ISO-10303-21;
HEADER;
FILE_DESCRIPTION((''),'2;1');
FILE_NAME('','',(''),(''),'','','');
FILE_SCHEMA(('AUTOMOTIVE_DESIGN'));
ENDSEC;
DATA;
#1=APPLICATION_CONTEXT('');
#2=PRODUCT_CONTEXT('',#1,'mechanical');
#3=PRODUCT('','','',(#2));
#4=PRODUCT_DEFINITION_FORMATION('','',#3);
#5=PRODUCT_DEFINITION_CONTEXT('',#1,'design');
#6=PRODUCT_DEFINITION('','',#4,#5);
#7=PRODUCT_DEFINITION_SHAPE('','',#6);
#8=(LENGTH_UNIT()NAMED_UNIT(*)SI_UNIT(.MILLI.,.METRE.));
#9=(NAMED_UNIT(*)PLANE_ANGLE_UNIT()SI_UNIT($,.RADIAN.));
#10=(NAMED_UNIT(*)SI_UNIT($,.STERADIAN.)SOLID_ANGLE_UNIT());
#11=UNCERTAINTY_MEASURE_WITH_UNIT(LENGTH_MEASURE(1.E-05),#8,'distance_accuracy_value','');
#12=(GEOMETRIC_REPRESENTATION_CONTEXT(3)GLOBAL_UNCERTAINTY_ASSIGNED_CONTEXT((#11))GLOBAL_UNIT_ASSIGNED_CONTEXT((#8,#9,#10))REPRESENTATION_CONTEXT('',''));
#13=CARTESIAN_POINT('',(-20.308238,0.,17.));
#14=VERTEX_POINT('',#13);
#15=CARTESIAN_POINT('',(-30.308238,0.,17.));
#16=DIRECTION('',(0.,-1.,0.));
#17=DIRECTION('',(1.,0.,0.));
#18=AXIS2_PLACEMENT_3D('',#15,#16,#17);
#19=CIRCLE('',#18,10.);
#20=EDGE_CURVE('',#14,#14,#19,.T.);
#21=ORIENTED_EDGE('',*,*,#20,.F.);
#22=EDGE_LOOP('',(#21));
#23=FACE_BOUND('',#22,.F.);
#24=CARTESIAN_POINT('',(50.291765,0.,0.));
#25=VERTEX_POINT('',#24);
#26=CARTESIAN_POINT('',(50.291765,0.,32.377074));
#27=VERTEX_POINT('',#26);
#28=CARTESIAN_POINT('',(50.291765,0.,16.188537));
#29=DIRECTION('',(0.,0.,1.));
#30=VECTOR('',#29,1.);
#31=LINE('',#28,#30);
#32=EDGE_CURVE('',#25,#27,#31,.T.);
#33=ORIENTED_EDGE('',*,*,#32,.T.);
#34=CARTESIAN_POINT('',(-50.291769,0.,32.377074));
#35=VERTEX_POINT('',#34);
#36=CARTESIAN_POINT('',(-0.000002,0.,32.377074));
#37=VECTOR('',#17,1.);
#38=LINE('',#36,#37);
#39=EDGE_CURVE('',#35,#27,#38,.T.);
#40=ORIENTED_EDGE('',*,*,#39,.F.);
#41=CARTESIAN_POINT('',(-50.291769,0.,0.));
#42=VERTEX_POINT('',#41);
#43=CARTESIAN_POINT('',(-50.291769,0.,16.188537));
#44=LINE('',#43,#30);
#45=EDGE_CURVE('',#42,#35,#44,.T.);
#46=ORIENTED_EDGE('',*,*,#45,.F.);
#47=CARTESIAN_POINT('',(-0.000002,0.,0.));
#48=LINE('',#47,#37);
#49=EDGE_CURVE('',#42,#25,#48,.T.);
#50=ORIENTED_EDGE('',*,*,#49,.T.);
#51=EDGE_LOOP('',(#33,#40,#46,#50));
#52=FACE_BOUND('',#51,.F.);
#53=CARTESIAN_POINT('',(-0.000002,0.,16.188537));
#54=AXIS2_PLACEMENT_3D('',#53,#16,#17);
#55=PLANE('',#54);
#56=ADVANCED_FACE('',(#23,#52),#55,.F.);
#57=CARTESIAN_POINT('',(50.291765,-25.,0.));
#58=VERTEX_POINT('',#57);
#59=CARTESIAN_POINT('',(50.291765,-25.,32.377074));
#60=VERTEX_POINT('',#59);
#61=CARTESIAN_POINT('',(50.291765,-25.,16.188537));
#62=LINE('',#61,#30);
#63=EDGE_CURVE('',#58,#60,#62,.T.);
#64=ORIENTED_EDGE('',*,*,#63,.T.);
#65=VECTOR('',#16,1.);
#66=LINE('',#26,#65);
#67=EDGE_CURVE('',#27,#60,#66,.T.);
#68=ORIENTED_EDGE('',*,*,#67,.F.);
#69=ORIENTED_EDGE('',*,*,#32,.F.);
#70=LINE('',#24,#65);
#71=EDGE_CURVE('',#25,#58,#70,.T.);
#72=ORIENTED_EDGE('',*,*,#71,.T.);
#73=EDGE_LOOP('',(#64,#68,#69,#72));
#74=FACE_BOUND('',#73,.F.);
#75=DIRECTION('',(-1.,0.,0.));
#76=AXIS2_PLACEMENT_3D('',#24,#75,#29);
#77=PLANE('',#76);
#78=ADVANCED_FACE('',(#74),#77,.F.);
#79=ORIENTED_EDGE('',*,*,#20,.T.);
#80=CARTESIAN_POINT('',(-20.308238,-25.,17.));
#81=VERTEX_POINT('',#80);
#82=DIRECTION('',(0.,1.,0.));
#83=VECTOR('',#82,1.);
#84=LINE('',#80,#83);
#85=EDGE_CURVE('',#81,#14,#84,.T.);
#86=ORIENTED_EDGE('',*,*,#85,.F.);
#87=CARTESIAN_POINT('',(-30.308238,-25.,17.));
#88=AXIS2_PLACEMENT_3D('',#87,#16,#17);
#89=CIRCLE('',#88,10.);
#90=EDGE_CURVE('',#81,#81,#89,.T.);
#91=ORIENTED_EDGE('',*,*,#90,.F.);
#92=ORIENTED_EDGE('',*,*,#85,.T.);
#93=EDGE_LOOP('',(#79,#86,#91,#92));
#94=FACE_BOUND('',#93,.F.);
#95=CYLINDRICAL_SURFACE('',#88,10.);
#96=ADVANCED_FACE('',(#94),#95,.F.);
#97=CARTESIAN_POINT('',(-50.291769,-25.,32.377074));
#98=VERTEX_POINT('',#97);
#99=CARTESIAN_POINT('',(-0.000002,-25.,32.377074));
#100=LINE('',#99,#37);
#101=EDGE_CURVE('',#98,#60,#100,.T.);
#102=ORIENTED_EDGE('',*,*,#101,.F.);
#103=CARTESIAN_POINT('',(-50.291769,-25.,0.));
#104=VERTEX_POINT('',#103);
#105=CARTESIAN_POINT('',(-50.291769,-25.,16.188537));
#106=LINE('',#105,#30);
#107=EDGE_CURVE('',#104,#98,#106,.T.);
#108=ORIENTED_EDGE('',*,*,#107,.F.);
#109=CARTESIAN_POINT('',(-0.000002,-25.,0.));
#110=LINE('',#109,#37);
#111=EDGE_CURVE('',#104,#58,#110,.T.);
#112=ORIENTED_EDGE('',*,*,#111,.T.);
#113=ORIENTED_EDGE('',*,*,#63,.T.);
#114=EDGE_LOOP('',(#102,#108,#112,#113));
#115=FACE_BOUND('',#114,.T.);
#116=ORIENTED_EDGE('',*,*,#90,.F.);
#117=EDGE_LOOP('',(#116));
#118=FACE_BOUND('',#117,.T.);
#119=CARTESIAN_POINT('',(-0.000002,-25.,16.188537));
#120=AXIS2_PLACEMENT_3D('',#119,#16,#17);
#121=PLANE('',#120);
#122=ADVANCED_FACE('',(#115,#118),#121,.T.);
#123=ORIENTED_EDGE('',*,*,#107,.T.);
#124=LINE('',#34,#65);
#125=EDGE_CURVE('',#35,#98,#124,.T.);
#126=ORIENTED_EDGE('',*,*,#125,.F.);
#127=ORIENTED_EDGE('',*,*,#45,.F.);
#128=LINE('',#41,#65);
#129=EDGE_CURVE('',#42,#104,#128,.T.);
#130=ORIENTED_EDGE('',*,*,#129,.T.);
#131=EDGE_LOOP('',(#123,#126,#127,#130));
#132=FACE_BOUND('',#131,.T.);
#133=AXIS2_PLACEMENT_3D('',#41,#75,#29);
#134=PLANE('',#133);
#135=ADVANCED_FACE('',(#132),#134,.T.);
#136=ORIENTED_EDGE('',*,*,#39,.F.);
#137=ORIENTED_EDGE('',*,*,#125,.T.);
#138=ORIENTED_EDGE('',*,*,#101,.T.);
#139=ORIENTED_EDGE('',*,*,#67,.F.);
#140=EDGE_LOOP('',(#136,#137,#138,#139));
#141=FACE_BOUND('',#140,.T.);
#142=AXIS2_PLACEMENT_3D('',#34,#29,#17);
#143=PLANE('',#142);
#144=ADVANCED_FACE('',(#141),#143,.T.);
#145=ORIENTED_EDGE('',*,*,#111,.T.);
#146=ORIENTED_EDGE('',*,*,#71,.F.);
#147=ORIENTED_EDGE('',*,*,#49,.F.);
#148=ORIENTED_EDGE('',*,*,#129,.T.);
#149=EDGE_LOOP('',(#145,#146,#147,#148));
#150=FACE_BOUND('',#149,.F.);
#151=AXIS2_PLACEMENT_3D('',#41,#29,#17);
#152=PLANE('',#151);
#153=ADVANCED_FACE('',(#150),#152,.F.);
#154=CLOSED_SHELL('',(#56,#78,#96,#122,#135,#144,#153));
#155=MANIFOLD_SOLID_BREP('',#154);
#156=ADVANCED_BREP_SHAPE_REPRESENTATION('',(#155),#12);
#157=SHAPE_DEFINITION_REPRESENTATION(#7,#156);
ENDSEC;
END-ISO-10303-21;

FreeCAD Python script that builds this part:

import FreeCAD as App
import Part
import Sketcher
from FreeCAD import Vector
Q = App.Units.Quantity

doc = App.newDocument("Part")
body = doc.addObject("PartDesign::Body", "Body")

# Sketch on XZ plane
sketch1 = body.newObject("Sketcher::SketchObject", "Sketch")
sketch1.AttachmentSupport = (doc.getObject("XZ_Plane"), [""])
sketch1.MapMode = "FlatFace"
sketch1.addGeometry(Part.LineSegment(Vector(-50.291769, 32.377074, 0), Vector(-50.291769, 0, 0)), False)
sketch1.addGeometry(Part.LineSegment(Vector(-50.291769, 0, 0), Vector(50.291765, 0, 0)), False)
sketch1.addGeometry(Part.LineSegment(Vector(50.291765, 0, 0), Vector(50.291765, 32.377074, 0)), False)
sketch1.addGeometry(Part.LineSegment(Vector(50.291765, 32.377074, 0), Vector(-50.291769, 32.377074, 0)), False)
sketch1.addConstraint(Sketcher.Constraint("Coincident", 0, 2, 1, 1))
sketch1.addConstraint(Sketcher.Constraint("Coincident", 1, 2, 2, 1))
sketch1.addConstraint(Sketcher.Constraint("Coincident", 2, 2, 3, 1))
sketch1.addConstraint(Sketcher.Constraint("Coincident", 3, 2, 0, 1))
sketch1.addConstraint(Sketcher.Constraint("Vertical", 0))
sketch1.addConstraint(Sketcher.Constraint("Horizontal", 1))
sketch1.addConstraint(Sketcher.Constraint("Vertical", 2))
sketch1.addConstraint(Sketcher.Constraint("Horizontal", 3))
sketch1.addConstraint(Sketcher.Constraint("Symmetric", 0, 2, 1, 2, -1, 1))
sketch1.addConstraint(Sketcher.Constraint("DistanceX", 1, 1, 1, 2, Q("100.583534 mm")))
sketch1.addConstraint(Sketcher.Constraint("DistanceY", 0, 2, 0, 1, Q("32.377075 mm")))
pad1 = body.newObject("PartDesign::Pad", "Pad")
pad1.Profile = sketch1
pad1.Length = 25

# Sketch on XZ plane
sketch2 = body.newObject("Sketcher::SketchObject", "Sketch001")
sketch2.AttachmentSupport = (doc.getObject("XZ_Plane"), [""])
sketch2.MapMode = "FlatFace"
sketch2.AttachmentOffset = App.Placement(Vector(0, 0, 25), App.Rotation())
sketch2.addGeometry(Part.Circle(Vector(-30.308238, 17, 0), Vector(0, 0, 1), 10), False)
sketch2.addConstraint(Sketcher.Constraint("Diameter", 0, Q("20 mm")))
sketch2.addConstraint(Sketcher.Constraint("DistanceY", -1, 1, 0, 3, Q("17 mm")))
sketch2.addConstraint(Sketcher.Constraint("DistanceX", 0, 3, -1, 1, Q("30.308238 mm")))
pocket1 = body.newObject("PartDesign::Pocket", "Pocket")
pocket1.Profile = sketch2
pocket1.Length = 38.7

doc.recompute()
